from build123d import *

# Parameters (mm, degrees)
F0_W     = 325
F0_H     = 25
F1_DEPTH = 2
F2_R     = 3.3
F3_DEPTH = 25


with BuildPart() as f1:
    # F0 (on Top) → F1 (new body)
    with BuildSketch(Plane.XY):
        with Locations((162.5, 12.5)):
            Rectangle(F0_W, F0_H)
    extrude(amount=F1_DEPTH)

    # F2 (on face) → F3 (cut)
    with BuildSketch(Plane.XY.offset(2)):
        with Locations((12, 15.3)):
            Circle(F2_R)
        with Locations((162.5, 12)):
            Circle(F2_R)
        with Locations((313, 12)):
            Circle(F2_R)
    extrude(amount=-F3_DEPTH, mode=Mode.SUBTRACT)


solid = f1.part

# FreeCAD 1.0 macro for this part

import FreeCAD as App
import Part
import Sketcher

doc = App.newDocument("Part")
body = doc.addObject("PartDesign::Body", "Body")

sketch1 = body.newObject("Sketcher::SketchObject", "Sketch")
sketch1.AttachmentSupport = (doc.getObject("XY_Plane"), [""])
sketch1.MapMode = "FlatFace"
sketch1.addGeometry([
    Part.LineSegment(App.Vector(0, 25, 0), App.Vector(0, 0, 0)),
    Part.LineSegment(App.Vector(0, 0, 0), App.Vector(325, 0, 0)),
    Part.LineSegment(App.Vector(325, 0, 0), App.Vector(325, 25, 0)),
    Part.LineSegment(App.Vector(325, 25, 0), App.Vector(0, 25, 0)),
], False)
sketch1.addConstraint([
    Sketcher.Constraint("Coincident", 0, 2, 1, 1),
    Sketcher.Constraint("Coincident", 1, 2, 2, 1),
    Sketcher.Constraint("Coincident", 2, 2, 3, 1),
    Sketcher.Constraint("Coincident", 3, 2, 0, 1),
    Sketcher.Constraint("Vertical", 0),
    Sketcher.Constraint("Horizontal", 1),
    Sketcher.Constraint("Vertical", 2),
    Sketcher.Constraint("Horizontal", 3),
    Sketcher.Constraint("Coincident", 0, 2, -1, 1),
    Sketcher.Constraint("DistanceX", 1, 1, 1, 2, 325.0),
    Sketcher.Constraint("DistanceY", 0, 2, 0, 1, 25.0),
])
pad1 = body.newObject("PartDesign::Pad", "Pad")
pad1.Profile = sketch1
pad1.Length = 2

sketch2 = body.newObject("Sketcher::SketchObject", "Sketch001")
sketch2.AttachmentSupport = (doc.getObject("XY_Plane"), [""])
sketch2.MapMode = "FlatFace"
sketch2.AttachmentOffset = App.Placement(App.Vector(0, 0, 2), App.Rotation())
sketch2.addGeometry([
    Part.Circle(App.Vector(12, 15.3, 0), App.Vector(0, 0, 1), 3.3),
    Part.Circle(App.Vector(162.5, 12, 0), App.Vector(0, 0, 1), 3.3),
    Part.Circle(App.Vector(313, 12, 0), App.Vector(0, 0, 1), 3.3),
], False)
sketch2.addConstraint([
    Sketcher.Constraint("Equal", 0, 1),
    Sketcher.Constraint("Equal", 1, 2),
    Sketcher.Constraint("Horizontal", 1, 3, 2, 3),
    Sketcher.Constraint("Diameter", 0, 6.6),
    Sketcher.Constraint("DistanceX", -1, 1, 0, 3, 12.0),
    Sketcher.Constraint("DistanceY", -1, 1, 1, 3, 12.0),
    Sketcher.Constraint("DistanceX", -1, 1, 2, 3, 313.0),
    Sketcher.Constraint("DistanceY", -1, 1, 0, 3, 15.3),
    Sketcher.Constraint("DistanceX", -1, 1, 1, 3, 162.5),
])
pocket1 = body.newObject("PartDesign::Pocket", "Pocket")
pocket1.Profile = sketch2
pocket1.Length = 25

doc.recompute()
